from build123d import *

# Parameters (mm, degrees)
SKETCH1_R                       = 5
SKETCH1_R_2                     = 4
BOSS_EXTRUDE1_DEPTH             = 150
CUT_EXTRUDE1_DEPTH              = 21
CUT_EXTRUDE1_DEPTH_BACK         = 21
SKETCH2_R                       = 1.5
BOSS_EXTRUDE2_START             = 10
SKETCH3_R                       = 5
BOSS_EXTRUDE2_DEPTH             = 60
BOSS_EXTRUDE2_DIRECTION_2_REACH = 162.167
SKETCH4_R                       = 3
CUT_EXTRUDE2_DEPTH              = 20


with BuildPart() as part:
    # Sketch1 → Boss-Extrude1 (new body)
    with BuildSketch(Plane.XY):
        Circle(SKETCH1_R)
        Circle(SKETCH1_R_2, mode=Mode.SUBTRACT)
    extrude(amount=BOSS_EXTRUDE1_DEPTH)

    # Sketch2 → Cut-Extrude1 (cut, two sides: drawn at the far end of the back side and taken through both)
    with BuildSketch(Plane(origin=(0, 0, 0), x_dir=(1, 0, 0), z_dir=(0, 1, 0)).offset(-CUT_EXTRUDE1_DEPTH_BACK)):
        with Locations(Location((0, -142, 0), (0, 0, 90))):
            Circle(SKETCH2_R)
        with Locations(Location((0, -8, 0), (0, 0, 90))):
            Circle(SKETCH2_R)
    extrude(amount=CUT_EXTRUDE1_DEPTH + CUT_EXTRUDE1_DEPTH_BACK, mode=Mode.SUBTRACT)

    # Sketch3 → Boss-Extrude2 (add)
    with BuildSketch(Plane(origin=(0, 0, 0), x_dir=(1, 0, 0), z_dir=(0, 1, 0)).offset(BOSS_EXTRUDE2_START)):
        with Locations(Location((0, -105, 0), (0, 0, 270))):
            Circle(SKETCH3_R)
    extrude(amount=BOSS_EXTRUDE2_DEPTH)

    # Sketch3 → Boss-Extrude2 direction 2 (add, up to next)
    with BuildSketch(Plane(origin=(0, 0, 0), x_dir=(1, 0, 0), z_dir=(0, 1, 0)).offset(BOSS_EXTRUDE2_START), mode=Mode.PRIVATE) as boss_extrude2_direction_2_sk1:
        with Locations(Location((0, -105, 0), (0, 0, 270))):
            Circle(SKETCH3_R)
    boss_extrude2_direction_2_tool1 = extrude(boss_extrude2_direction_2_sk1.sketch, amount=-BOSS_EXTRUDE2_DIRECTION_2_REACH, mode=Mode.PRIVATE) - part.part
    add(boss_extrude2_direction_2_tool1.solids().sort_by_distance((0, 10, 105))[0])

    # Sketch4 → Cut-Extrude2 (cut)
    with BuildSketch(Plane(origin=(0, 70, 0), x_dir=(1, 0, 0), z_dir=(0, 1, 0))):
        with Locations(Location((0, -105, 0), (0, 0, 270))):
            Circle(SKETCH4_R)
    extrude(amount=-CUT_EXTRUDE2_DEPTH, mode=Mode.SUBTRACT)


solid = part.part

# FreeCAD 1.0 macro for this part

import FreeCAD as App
import Part
import Sketcher

V = App.Vector

doc = App.newDocument("Part")
params = doc.addObject("Spreadsheet::Sheet", "Params")
for row, (alias, value) in enumerate([
    ("sketch1_diameter", "10 mm"),
    ("sketch1_diameter2", "8 mm"),
    ("pad1_length", "150 mm"),
    ("sketch2_diameter", "3 mm"),
    ("sketch3_diameter", "10 mm"),
    ("pad2_length", "60 mm"),
    ("sketch4_diameter", "10 mm"),
    ("sketch5_diameter", "6 mm"),
    ("pocket2_length", "20 mm"),
], start=1):
    params.set(f"A{row}", alias)
    params.set(f"B{row}", "=" + value)
    params.setAlias(f"B{row}", alias)

body = doc.addObject("PartDesign::Body", "Body")
body.AllowCompound = True

sketch1 = body.newObject("Sketcher::SketchObject", "Sketch")
sketch1.AttachmentSupport = (doc.getObject("XY_Plane"), [""])
sketch1.MapMode = "FlatFace"
sketch1.addGeometry(Part.Circle(V(0, 0, 0), V(0, 0, 1), 5), False)
sketch1.addGeometry(Part.Circle(V(0, 0, 0), V(0, 0, 1), 4), False)
sketch1.addConstraint(Sketcher.Constraint("Coincident", 0, 3, -1, 1))
sketch1.addConstraint(Sketcher.Constraint("Coincident", 1, 3, -1, 1))
sketch1.addConstraint(Sketcher.Constraint("Diameter", 0, 10.0))
sketch1.addConstraint(Sketcher.Constraint("Diameter", 1, 8.0))
sketch1.setExpression("Constraints[2]", "Params.sketch1_diameter")
sketch1.setExpression("Constraints[3]", "Params.sketch1_diameter2")
pad1 = body.newObject("PartDesign::Pad", "Pad")
pad1.Profile = sketch1
pad1.setExpression("Length", "Params.pad1_length")

sketch2 = body.newObject("Sketcher::SketchObject", "Sketch001")
sketch2.AttachmentSupport = (doc.getObject("XZ_Plane"), [""])
sketch2.MapMode = "FlatFace"
sketch2.addGeometry(Part.Circle(V(0, 142, 0), V(0, 0, 1), 1.5), False)
sketch2.addGeometry(Part.Circle(V(0, 8, 0), V(0, 0, 1), 1.5), False)
sketch2.addConstraint(Sketcher.Constraint("Equal", 0, 1))
sketch2.addConstraint(Sketcher.Constraint("PointOnObject", 0, 3, -2))
sketch2.addConstraint(Sketcher.Constraint("PointOnObject", 1, 3, -2))
sketch2.addConstraint(Sketcher.Constraint("Diameter", 0, 3.0))
sketch2.addConstraint(Sketcher.Constraint("DistanceY", -1, 1, 0, 3, 142.0))
sketch2.addConstraint(Sketcher.Constraint("DistanceY", -1, 1, 1, 3, 8.0))
sketch2.setExpression("Constraints[3]", "Params.sketch2_diameter")
pocket1 = body.newObject("PartDesign::Pocket", "Pocket")
pocket1.Profile = sketch2
pocket1.Type = "ThroughAll"
pocket1.Midplane = True

sketch3 = body.newObject("Sketcher::SketchObject", "Sketch002")
sketch3.AttachmentSupport = (doc.getObject("XZ_Plane"), [""])
sketch3.MapMode = "FlatFace"
sketch3.AttachmentOffset = App.Placement(V(0, 0, -10), App.Rotation())
sketch3.addGeometry(Part.Circle(V(0, 105, 0), V(0, 0, 1), 5), False)
sketch3.addConstraint(Sketcher.Constraint("PointOnObject", 0, 3, -2))
sketch3.addConstraint(Sketcher.Constraint("Diameter", 0, 10.0))
sketch3.addConstraint(Sketcher.Constraint("DistanceY", -1, 1, 0, 3, 105.0))
sketch3.setExpression("Constraints[1]", "Params.sketch3_diameter")
pad2 = body.newObject("PartDesign::Pad", "Pad001")
pad2.Profile = sketch3
pad2.setExpression("Length", "Params.pad2_length")
pad2.Reversed = True

sketch4 = body.newObject("Sketcher::SketchObject", "Sketch003")
sketch4.AttachmentSupport = (doc.getObject("XZ_Plane"), [""])
sketch4.MapMode = "FlatFace"
sketch4.AttachmentOffset = App.Placement(V(0, 0, -10), App.Rotation())
sketch4.addGeometry(Part.Circle(V(0, 105, 0), V(0, 0, 1), 5), False)
sketch4.addConstraint(Sketcher.Constraint("PointOnObject", 0, 3, -2))
sketch4.addConstraint(Sketcher.Constraint("Diameter", 0, 10.0))
sketch4.addConstraint(Sketcher.Constraint("DistanceY", -1, 1, 0, 3, 105.0))
sketch4.setExpression("Constraints[1]", "Params.sketch4_diameter")
pad3 = body.newObject("PartDesign::Pad", "Pad002")
pad3.Profile = sketch4
pad3.Type = "UpToFirst"

sketch5 = body.newObject("Sketcher::SketchObject", "Sketch004")
sketch5.AttachmentSupport = (doc.getObject("XZ_Plane"), [""])
sketch5.MapMode = "FlatFace"
sketch5.AttachmentOffset = App.Placement(V(0, 0, -70), App.Rotation())
sketch5.addGeometry(Part.Circle(V(0, 105, 0), V(0, 0, 1), 3), False)
sketch5.addConstraint(Sketcher.Constraint("PointOnObject", 0, 3, -2))
sketch5.addConstraint(Sketcher.Constraint("Diameter", 0, 6.0))
sketch5.addConstraint(Sketcher.Constraint("DistanceY", -1, 1, 0, 3, 105.0))
sketch5.setExpression("Constraints[1]", "Params.sketch5_diameter")
pocket2 = body.newObject("PartDesign::Pocket", "Pocket001")
pocket2.Profile = sketch5
pocket2.setExpression("Length", "Params.pocket2_length")
pocket2.Reversed = True

doc.recompute()
